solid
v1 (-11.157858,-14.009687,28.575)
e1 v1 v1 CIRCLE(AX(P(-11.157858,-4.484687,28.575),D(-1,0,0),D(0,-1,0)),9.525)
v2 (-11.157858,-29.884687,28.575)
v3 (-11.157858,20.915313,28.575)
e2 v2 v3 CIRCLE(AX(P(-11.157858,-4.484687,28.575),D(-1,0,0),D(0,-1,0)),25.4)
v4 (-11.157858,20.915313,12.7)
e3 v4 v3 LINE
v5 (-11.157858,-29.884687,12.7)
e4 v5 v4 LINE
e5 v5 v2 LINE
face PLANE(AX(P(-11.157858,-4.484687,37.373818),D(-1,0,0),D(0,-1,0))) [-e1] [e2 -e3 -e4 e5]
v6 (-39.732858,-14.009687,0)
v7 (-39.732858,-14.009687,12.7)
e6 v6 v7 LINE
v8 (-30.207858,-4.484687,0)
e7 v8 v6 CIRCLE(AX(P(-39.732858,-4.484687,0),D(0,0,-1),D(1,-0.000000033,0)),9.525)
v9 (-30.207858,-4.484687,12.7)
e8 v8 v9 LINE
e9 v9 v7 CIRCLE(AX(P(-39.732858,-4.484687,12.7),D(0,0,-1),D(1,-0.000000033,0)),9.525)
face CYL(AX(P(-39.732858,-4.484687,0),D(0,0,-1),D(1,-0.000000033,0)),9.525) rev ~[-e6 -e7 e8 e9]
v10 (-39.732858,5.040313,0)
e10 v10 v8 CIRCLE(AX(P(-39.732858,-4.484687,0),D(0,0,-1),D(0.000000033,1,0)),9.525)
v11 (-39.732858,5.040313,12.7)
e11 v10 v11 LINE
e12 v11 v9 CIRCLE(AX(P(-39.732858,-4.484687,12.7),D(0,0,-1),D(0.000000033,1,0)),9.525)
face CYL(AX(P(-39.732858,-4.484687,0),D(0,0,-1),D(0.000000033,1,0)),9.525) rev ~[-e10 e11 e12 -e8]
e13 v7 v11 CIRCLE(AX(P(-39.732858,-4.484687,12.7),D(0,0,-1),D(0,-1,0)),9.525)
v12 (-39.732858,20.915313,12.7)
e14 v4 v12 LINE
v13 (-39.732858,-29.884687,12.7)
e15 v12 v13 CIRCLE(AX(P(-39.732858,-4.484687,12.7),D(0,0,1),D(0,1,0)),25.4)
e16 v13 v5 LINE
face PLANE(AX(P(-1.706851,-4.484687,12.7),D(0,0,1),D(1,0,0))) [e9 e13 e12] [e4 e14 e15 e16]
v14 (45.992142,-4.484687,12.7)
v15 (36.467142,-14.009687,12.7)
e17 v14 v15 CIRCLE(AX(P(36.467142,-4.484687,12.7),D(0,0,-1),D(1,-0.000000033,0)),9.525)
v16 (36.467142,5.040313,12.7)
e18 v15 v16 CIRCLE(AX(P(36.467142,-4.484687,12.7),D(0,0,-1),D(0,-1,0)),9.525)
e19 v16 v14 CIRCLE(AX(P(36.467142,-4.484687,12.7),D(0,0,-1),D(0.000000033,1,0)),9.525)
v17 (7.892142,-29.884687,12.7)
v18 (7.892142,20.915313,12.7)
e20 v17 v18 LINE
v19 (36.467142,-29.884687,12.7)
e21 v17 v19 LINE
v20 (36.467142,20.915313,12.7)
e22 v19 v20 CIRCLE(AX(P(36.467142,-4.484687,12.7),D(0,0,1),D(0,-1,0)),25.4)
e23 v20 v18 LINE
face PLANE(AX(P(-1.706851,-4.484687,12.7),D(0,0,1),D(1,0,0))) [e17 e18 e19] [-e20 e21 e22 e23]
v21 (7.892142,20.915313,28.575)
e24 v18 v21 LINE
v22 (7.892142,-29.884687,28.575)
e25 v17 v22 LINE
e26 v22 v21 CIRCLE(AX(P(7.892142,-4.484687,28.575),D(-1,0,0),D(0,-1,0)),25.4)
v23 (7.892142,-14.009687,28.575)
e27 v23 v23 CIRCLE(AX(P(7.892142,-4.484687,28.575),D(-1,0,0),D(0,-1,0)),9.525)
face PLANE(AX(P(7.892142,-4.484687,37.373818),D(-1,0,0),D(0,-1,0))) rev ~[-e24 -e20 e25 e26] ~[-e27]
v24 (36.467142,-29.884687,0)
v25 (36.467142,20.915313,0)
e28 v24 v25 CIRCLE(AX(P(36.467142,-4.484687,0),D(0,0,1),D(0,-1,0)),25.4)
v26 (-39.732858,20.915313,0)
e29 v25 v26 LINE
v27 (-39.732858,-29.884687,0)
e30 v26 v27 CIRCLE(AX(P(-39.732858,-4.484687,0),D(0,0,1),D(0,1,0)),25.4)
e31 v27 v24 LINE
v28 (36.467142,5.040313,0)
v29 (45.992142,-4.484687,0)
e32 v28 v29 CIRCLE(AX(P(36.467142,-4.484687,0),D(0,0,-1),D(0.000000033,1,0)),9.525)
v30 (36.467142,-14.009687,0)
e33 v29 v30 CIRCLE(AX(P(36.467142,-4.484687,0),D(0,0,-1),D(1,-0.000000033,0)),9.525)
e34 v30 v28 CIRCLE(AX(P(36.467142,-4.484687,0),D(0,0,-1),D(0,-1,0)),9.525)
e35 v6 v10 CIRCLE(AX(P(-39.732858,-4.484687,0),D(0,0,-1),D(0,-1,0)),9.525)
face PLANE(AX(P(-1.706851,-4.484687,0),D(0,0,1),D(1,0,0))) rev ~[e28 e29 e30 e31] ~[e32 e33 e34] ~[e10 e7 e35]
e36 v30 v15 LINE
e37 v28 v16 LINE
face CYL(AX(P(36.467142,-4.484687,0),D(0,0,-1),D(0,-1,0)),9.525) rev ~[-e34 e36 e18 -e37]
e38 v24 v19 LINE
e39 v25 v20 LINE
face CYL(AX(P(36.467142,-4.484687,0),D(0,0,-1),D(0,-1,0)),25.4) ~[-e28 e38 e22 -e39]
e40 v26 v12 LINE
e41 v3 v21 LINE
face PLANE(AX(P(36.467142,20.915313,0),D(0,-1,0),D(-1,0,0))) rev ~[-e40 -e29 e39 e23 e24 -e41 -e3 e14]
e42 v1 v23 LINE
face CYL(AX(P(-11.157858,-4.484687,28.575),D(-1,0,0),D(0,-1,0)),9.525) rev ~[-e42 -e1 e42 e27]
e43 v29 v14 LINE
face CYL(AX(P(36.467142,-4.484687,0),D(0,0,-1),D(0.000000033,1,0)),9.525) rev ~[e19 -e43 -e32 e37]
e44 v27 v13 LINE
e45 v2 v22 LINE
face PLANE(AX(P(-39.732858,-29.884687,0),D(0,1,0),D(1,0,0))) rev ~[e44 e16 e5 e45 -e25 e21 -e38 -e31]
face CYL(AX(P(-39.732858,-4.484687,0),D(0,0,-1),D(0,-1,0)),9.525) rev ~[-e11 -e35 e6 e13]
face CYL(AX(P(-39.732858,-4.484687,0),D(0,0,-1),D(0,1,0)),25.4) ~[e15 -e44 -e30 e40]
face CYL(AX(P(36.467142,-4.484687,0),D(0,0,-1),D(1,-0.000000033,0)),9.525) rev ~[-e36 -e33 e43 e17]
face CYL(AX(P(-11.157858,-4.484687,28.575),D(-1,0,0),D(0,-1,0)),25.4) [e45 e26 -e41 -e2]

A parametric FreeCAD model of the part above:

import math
import FreeCAD as App
import Part
import Sketcher
Q = App.Units.Quantity

doc = App.newDocument("Part")
body = doc.addObject("PartDesign::Body", "Body")

# Sketch on XY plane
sketch1 = doc.addObject("Sketcher::SketchObject", "Sketch")
body.addObject(sketch1)
sketch1.AttachmentSupport = (doc.XY_Plane, [""])
sketch1.MapMode = "FlatFace"
sketch1.addGeometry([
    Part.LineSegment(App.Vector(36, 21, 0), App.Vector(-40, 21, 0)),  # 0
    Part.ArcOfCircle(Part.Circle(App.Vector(-40, -4, 0), App.Vector(0, 0, 1), 25), math.radians(90), math.radians(270)),  # 1
    Part.LineSegment(App.Vector(-40, -30, 0), App.Vector(36, -30, 0)),  # 2
    Part.ArcOfCircle(Part.Circle(App.Vector(36, -4, 0), App.Vector(0, 0, 1), 25), math.radians(-90), math.radians(90)),  # 3
    Part.ArcOfCircle(Part.Circle(App.Vector(36, -4, 0), App.Vector(0, 0, 1), 10), math.radians(90), math.radians(270)),  # 4
    Part.ArcOfCircle(Part.Circle(App.Vector(36, -4, 0), App.Vector(0, 0, 1), 10), math.radians(0), math.radians(90)),  # 5
    Part.ArcOfCircle(Part.Circle(App.Vector(36, -4, 0), App.Vector(0, 0, 1), 10), math.radians(-90), math.radians(0)),  # 6
    Part.ArcOfCircle(Part.Circle(App.Vector(-40, -4, 0), App.Vector(0, 0, 1), 10), math.radians(0), math.radians(90)),  # 7
    Part.ArcOfCircle(Part.Circle(App.Vector(-40, -4, 0), App.Vector(0, 0, 1), 10), math.radians(-90), math.radians(0)),  # 8
    Part.ArcOfCircle(Part.Circle(App.Vector(-40, -4, 0), App.Vector(0, 0, 1), 10), math.radians(90), math.radians(270)),  # 9
], False)
sketch1.addConstraint([
    Sketcher.Constraint("Tangent", 0, 2, 1, 1),
    Sketcher.Constraint("Tangent", 1, 2, 2, 1),
    Sketcher.Constraint("Tangent", 2, 2, 3, 1),
    Sketcher.Constraint("Tangent", 3, 2, 0, 1),
    Sketcher.Constraint("Tangent", 4, 1, 5, 2),
    Sketcher.Constraint("Tangent", 5, 1, 6, 2),
    Sketcher.Constraint("Tangent", 6, 1, 4, 2),
    Sketcher.Constraint("Tangent", 7, 1, 8, 2),
    Sketcher.Constraint("Tangent", 8, 1, 9, 2),
    Sketcher.Constraint("Tangent", 9, 1, 7, 2),
    Sketcher.Constraint("Horizontal", 0),
    Sketcher.Constraint("Horizontal", 2),
    Sketcher.Constraint("Coincident", 4, 3, 3, 3),
    Sketcher.Constraint("Coincident", 7, 3, 1, 3),
    Sketcher.Constraint("Equal", 6, 7),
    Sketcher.Constraint("Horizontal", 9, 3, 5, 1),
    Sketcher.Constraint("Horizontal", 5, 1, 7, 1),
    Sketcher.Constraint("Vertical", 3, 2, 4, 1),
    Sketcher.Constraint("Vertical", 4, 1, 6, 1),
    Sketcher.Constraint("Vertical", 1, 2, 8, 1),
    Sketcher.Constraint("Vertical", 8, 1, 9, 1),
    Sketcher.Constraint("Radius", 1, Q("1 in")),
    Sketcher.Constraint("DistanceX", 0, 2, 0, 1, Q("3 in")),
    Sketcher.Constraint("Radius", 4, Q("0.375 in")),
    Sketcher.Constraint("DistanceX", -1, 1, 5, 3, 36.467142),
    Sketcher.Constraint("DistanceY", 1, 3, -1, 1, 4.484687),
])
pad1 = doc.addObject("PartDesign::Pad", "Pad")
body.addObject(pad1)
pad1.Profile = sketch1
pad1.Length = Q("0.5 in")

# Sketch on XY plane
sketch2 = doc.addObject("Sketcher::SketchObject", "Sketch001")
body.addObject(sketch2)
sketch2.AttachmentSupport = (doc.XY_Plane, [""])
sketch2.MapMode = "FlatFace"
sketch2.AttachmentOffset = App.Placement(App.Vector(0, 0, 0.5 * 25.4), App.Rotation())
sketch2.addGeometry([
    Part.LineSegment(App.Vector(-11, 21, 0), App.Vector(-11, -30, 0)),
    Part.LineSegment(App.Vector(-11, -30, 0), App.Vector(8, -30, 0)),
    Part.LineSegment(App.Vector(8, -30, 0), App.Vector(8, 21, 0)),
    Part.LineSegment(App.Vector(8, 21, 0), App.Vector(-11, 21, 0)),
], False)
sketch2.addConstraint([
    Sketcher.Constraint("Coincident", 0, 2, 1, 1),
    Sketcher.Constraint("Coincident", 1, 2, 2, 1),
    Sketcher.Constraint("Coincident", 2, 2, 3, 1),
    Sketcher.Constraint("Coincident", 3, 2, 0, 1),
    Sketcher.Constraint("Vertical", 0),
    Sketcher.Constraint("Horizontal", 1),
    Sketcher.Constraint("Vertical", 2),
    Sketcher.Constraint("Horizontal", 3),
    Sketcher.Constraint("DistanceY", 0, 2, 0, 1, Q("2 in")),
    Sketcher.Constraint("DistanceX", 1, 1, 1, 2, Q("0.75 in")),
    Sketcher.Constraint("DistanceX", -1, 1, 1, 2, 7.892142),
    Sketcher.Constraint("DistanceY", 0, 2, -1, 1, 29.884687),
])
pad2 = doc.addObject("PartDesign::Pad", "Pad001")
body.addObject(pad2)
pad2.Profile = sketch2
pad2.Length = Q("0.625 in")

# Sketch on YZ plane
sketch3 = doc.addObject("Sketcher::SketchObject", "Sketch002")
body.addObject(sketch3)
sketch3.AttachmentSupport = (doc.YZ_Plane, [""])
sketch3.MapMode = "FlatFace"
sketch3.AttachmentOffset = App.Placement(App.Vector(0, 0, -11.157858), App.Rotation())
sketch3.addGeometry([
    Part.LineSegment(App.Vector(21, 29, 0), App.Vector(-30, 29, 0)),
    Part.ArcOfCircle(Part.Circle(App.Vector(-4, 29, 0), App.Vector(0, 0, 1), 25), math.radians(0), math.radians(180)),
], False)
sketch3.addConstraint([
    Sketcher.Constraint("Coincident", 0, 1, 1, 1),
    Sketcher.Constraint("Coincident", 1, 2, 0, 2),
    Sketcher.Constraint("Horizontal", 0),
    Sketcher.Constraint("Horizontal", 1, 3, 0, 1),
    Sketcher.Constraint("Radius", 1, Q("1 in")),
    Sketcher.Constraint("DistanceY", -1, 1, 1, 3, Q("1.125 in")),
    Sketcher.Constraint("DistanceX", 1, 3, -1, 1, 4.484687),
])
pad3 = doc.addObject("PartDesign::Pad", "Pad002")
body.addObject(pad3)
pad3.Profile = sketch3
pad3.Length = Q("0.75 in")

# Sketch on YZ plane
sketch4 = doc.addObject("Sketcher::SketchObject", "Sketch003")
body.addObject(sketch4)
sketch4.AttachmentSupport = (doc.YZ_Plane, [""])
sketch4.MapMode = "FlatFace"
sketch4.AttachmentOffset = App.Placement(App.Vector(0, 0, -11.157858), App.Rotation())
sketch4.addGeometry(Part.Circle(App.Vector(-4, 29, 0), App.Vector(0, 0, 1), 10), False)
sketch4.addConstraint([
    Sketcher.Constraint("Diameter", 0, Q("0.75 in")),
    Sketcher.Constraint("DistanceY", -1, 1, 0, 3, Q("1.125 in")),
    Sketcher.Constraint("DistanceX", 0, 3, -1, 1, 4.484687),
])
pocket1 = doc.addObject("PartDesign::Pocket", "Pocket")
body.addObject(pocket1)
pocket1.Profile = sketch4
pocket1.Length = Q("0.75 in")
pocket1.Reversed = True

doc.recompute()
